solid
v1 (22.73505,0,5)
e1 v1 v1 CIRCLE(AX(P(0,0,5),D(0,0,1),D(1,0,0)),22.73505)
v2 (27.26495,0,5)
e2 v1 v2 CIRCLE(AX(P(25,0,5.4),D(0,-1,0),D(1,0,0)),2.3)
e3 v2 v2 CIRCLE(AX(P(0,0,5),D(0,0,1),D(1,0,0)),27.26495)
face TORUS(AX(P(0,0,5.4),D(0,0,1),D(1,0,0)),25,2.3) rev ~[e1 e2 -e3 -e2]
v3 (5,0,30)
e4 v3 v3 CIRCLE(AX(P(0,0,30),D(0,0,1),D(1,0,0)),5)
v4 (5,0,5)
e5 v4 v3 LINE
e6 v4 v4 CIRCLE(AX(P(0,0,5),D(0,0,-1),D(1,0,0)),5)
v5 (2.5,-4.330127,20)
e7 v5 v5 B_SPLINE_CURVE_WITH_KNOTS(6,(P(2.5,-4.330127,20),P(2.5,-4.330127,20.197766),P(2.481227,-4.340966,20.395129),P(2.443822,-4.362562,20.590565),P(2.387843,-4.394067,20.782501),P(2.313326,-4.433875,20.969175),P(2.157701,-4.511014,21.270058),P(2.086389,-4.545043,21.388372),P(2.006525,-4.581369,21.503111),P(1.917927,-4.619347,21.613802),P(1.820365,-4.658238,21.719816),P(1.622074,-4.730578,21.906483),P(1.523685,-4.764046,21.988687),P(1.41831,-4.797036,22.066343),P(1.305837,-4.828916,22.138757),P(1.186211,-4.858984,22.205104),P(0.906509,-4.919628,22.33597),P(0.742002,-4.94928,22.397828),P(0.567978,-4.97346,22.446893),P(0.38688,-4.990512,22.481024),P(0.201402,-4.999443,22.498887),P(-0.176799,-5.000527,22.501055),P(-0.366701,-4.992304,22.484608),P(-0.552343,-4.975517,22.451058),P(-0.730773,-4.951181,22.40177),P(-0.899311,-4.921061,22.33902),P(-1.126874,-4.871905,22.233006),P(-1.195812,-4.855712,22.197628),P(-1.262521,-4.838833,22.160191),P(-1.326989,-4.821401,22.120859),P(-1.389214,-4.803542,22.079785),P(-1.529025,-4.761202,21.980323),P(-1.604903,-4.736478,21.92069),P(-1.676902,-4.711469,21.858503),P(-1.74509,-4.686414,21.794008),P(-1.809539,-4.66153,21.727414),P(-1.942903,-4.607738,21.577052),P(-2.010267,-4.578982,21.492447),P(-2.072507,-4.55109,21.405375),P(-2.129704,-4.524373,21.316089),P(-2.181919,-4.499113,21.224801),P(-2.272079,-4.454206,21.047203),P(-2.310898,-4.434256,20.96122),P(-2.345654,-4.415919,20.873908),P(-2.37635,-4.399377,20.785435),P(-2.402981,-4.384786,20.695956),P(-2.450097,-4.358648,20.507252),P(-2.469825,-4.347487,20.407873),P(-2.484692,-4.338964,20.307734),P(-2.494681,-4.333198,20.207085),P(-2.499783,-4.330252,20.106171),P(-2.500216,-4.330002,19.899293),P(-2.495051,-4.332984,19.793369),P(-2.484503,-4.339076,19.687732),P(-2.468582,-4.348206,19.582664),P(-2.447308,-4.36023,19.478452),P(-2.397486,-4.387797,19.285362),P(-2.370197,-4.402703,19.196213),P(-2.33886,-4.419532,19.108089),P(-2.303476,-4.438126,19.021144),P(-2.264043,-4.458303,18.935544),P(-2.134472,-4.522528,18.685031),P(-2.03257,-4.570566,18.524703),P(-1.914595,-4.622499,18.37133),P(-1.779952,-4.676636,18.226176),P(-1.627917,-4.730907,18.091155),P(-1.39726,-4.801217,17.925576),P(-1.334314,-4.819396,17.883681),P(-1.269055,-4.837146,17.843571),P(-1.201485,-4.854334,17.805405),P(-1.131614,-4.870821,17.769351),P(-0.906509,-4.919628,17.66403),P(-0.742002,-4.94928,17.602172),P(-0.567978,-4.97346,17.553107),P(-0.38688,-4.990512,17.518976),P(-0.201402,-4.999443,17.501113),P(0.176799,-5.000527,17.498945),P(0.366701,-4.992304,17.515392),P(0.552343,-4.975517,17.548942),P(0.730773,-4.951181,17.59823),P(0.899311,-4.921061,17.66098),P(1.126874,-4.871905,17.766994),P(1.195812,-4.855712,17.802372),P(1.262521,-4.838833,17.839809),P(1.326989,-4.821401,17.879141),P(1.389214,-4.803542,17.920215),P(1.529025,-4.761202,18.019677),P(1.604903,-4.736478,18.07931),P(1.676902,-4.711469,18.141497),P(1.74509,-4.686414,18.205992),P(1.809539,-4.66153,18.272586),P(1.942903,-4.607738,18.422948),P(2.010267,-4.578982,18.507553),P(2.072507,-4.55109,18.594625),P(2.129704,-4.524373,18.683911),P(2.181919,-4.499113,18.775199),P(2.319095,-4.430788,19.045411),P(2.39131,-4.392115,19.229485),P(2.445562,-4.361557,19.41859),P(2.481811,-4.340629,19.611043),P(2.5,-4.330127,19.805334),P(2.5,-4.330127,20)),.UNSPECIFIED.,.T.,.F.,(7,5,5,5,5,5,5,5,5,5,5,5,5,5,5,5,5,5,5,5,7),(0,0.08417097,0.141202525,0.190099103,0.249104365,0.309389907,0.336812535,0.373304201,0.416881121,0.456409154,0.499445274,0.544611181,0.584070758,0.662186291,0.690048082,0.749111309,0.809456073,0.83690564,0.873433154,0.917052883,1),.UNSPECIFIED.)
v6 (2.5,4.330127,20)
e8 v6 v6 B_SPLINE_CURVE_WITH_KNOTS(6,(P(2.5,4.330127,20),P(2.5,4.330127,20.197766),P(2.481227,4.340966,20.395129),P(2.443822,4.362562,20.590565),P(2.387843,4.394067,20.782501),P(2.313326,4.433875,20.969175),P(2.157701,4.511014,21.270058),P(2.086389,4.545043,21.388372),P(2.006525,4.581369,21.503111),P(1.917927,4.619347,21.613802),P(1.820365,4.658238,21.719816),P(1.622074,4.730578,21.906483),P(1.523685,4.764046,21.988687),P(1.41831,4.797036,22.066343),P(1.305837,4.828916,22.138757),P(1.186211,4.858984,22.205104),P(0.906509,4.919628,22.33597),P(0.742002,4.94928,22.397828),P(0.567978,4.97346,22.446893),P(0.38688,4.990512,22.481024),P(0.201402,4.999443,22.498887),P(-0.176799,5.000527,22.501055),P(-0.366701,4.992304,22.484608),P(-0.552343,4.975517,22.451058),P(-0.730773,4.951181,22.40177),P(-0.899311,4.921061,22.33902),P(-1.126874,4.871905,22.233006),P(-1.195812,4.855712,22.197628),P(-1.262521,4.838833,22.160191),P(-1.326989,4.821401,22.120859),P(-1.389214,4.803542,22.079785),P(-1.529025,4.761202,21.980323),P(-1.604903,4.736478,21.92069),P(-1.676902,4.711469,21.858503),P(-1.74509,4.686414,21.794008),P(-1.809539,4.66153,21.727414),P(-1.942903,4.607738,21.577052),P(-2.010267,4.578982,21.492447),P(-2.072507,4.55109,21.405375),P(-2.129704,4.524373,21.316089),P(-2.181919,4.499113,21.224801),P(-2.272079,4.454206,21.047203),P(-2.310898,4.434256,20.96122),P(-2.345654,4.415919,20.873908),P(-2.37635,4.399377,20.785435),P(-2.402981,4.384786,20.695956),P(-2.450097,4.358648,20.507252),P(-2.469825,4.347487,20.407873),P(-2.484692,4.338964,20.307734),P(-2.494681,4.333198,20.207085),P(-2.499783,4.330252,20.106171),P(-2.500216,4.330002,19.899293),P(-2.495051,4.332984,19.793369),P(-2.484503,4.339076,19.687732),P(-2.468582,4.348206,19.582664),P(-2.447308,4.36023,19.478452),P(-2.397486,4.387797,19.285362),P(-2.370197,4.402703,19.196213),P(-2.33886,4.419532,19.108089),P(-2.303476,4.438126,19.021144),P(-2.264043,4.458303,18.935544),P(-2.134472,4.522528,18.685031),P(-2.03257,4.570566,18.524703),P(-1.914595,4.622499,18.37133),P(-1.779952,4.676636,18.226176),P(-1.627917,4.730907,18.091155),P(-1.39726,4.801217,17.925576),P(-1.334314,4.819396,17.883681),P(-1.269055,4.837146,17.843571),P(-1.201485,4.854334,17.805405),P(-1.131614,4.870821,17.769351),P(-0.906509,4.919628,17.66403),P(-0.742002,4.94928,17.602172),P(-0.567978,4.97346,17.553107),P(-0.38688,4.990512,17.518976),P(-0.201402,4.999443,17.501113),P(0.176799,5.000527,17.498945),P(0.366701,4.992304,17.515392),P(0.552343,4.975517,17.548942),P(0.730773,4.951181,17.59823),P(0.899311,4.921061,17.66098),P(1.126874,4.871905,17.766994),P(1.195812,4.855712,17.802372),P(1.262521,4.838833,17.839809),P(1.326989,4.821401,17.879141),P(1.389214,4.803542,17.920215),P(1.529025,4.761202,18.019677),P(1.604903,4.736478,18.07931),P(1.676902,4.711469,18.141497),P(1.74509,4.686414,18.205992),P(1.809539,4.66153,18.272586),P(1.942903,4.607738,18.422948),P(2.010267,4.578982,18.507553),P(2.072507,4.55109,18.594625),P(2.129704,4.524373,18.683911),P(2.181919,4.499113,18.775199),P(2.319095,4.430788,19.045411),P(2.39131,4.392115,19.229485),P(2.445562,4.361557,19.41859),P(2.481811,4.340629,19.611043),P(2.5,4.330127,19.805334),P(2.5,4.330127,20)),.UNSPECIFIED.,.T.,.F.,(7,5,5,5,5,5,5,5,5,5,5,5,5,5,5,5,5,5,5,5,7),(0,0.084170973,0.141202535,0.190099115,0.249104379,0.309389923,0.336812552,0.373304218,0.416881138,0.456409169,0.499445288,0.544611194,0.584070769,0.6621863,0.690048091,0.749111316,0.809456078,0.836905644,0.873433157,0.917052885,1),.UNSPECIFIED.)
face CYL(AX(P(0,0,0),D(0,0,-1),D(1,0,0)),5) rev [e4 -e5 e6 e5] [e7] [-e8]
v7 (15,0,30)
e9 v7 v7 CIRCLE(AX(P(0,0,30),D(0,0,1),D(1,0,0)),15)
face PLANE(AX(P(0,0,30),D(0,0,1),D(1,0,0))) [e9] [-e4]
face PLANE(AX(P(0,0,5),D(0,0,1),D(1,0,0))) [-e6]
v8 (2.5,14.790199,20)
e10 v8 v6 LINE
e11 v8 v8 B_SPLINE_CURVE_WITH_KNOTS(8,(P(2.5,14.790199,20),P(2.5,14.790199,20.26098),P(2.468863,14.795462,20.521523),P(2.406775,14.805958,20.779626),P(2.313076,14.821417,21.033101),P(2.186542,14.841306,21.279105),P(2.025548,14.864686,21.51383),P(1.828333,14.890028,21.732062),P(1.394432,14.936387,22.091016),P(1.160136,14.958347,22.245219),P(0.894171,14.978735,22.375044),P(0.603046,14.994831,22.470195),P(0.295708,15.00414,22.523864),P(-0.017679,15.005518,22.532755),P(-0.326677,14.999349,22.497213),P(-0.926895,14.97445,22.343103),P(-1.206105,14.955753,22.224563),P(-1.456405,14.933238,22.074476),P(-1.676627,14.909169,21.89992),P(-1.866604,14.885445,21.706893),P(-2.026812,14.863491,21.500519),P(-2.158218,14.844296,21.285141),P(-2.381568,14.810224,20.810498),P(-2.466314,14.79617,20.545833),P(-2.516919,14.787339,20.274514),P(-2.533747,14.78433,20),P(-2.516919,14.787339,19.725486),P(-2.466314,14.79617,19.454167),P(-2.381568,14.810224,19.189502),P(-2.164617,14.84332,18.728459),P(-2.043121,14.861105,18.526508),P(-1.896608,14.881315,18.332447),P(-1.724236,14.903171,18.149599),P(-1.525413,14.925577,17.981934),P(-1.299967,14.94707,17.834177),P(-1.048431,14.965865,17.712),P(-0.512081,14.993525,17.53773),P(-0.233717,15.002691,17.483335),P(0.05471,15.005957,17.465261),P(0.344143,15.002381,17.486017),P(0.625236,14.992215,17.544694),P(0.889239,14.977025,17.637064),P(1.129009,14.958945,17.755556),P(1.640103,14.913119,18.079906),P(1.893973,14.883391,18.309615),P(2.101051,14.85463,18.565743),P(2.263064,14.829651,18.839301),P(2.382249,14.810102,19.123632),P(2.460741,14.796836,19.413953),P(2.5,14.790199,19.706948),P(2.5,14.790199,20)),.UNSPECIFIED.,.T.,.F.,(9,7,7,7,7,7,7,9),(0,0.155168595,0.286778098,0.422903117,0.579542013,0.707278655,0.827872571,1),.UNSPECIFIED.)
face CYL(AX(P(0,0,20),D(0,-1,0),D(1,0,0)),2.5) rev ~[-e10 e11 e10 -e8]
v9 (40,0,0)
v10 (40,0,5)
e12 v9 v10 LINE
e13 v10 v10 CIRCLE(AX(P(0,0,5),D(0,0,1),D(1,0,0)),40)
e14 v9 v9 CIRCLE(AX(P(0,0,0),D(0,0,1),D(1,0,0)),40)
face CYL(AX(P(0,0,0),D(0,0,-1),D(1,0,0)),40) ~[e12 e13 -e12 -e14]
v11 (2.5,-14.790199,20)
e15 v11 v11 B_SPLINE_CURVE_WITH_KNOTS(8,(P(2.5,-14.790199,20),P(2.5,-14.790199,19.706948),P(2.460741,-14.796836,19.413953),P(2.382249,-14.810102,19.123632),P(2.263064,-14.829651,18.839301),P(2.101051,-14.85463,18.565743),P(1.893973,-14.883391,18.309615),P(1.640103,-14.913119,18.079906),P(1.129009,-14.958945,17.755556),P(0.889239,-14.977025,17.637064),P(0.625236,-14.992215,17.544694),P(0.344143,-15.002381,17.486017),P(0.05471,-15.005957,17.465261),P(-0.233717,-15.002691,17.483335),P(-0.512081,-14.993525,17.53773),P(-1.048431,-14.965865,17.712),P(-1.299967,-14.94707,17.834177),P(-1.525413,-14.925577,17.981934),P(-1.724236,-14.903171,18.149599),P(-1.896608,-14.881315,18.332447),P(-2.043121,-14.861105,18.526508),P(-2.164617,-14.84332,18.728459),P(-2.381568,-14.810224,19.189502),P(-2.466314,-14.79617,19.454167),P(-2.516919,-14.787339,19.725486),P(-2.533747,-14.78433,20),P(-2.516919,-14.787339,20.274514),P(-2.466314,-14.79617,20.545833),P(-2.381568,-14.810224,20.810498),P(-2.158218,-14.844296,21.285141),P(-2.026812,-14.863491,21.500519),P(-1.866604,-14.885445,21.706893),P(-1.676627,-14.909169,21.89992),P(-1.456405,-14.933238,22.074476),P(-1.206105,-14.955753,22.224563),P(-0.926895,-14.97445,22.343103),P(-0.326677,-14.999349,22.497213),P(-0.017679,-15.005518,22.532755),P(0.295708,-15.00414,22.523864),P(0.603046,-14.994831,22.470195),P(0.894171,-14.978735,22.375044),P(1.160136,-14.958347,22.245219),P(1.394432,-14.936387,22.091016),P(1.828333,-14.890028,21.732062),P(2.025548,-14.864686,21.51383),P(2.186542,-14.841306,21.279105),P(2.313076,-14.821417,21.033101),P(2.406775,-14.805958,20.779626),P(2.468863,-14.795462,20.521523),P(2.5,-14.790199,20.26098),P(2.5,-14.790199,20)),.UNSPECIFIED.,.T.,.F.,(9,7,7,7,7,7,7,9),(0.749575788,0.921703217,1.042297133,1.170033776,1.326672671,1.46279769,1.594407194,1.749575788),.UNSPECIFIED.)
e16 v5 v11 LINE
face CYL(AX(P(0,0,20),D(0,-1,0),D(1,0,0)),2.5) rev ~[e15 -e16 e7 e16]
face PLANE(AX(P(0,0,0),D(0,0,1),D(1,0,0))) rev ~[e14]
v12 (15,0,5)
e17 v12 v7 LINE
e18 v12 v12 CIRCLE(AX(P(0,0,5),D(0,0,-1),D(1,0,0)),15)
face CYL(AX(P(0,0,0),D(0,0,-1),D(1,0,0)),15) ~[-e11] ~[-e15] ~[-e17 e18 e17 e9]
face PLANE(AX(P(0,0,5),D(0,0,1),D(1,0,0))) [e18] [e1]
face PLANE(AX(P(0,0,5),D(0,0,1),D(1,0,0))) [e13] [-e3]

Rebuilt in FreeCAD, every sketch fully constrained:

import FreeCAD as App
import Part
import Sketcher

V = App.Vector
Q = App.Units.Quantity

doc = App.newDocument("Part")
body = doc.addObject("PartDesign::Body", "Body")

# Sketch on XY plane
sketch1 = body.newObject("Sketcher::SketchObject", "Sketch")
sketch1.AttachmentSupport = (doc.getObject("XY_Plane"), [""])
sketch1.MapMode = "FlatFace"
sketch1.addGeometry(Part.Circle(V(0, 0, 0), V(0, 0, 1), 5), False)
sketch1.addConstraint([
    Sketcher.Constraint("Coincident", 0, 3, -1, 1),
    Sketcher.Constraint("Diameter", 0, Q("10 mm")),
])
pad1 = body.newObject("PartDesign::Pad", "Pad")
pad1.Profile = sketch1
pad1.Length = 30
body2 = doc.addObject("PartDesign::Body", "Body001")

# Sketch on XZ plane
sketch2 = body2.newObject("Sketcher::SketchObject", "Sketch001")
sketch2.AttachmentSupport = (doc.getObject("XZ_Plane001"), [""])
sketch2.MapMode = "FlatFace"
sketch2.addGeometry(Part.Circle(V(0, 20, 0), V(0, 0, 1), 2.5), False)
sketch2.addConstraint([
    Sketcher.Constraint("PointOnObject", 0, 3, -2),
    Sketcher.Constraint("Diameter", 0, Q("5 mm")),
    Sketcher.Constraint("DistanceY", -1, 1, 0, 3, Q("20 mm")),
])
pad2 = body2.newObject("PartDesign::Pad", "Pad001")
pad2.Profile = sketch2
pad2.Length = 30
pad2.Midplane = True
body3 = doc.addObject("PartDesign::Body", "Body002")

# Sketch on XY plane
sketch3 = body3.newObject("Sketcher::SketchObject", "Sketch002")
sketch3.AttachmentSupport = (doc.getObject("XY_Plane002"), [""])
sketch3.MapMode = "FlatFace"
sketch3.addGeometry(Part.Circle(V(0, 0, 0), V(0, 0, 1), 15), False)
sketch3.addConstraint([
    Sketcher.Constraint("Coincident", 0, 3, -1, 1),
    Sketcher.Constraint("Diameter", 0, Q("30 mm")),
])
pad3 = body3.newObject("PartDesign::Pad", "Pad002")
pad3.Profile = sketch3
pad3.Length = 30
doc.recompute()

boolean = body3.newObject("PartDesign::Boolean", "Boolean")
boolean.Type = "Cut"
boolean.addObjects([body2])
doc.recompute()

boolean2 = body3.newObject("PartDesign::Boolean", "Boolean001")
boolean2.Type = "Cut"
boolean2.addObjects([body])
body4 = doc.addObject("PartDesign::Body", "Body003")

# Sketch on XZ plane
sketch4 = body4.newObject("Sketcher::SketchObject", "Sketch003")
sketch4.AttachmentSupport = (doc.getObject("XZ_Plane003"), [""])
sketch4.MapMode = "FlatFace"
sketch4.addGeometry(Part.Circle(V(25, 5.4, 0), V(0, 0, 1), 2.3), False)
sketch4.addConstraint([
    Sketcher.Constraint("Diameter", 0, Q("4.6 mm")),
    Sketcher.Constraint("DistanceX", -1, 1, 0, 3, Q("25 mm")),
    Sketcher.Constraint("DistanceY", -1, 1, 0, 3, Q("5.4 mm")),
])
revolution = body4.newObject("PartDesign::Revolution", "Revolution")
revolution.Profile = sketch4
revolution.ReferenceAxis = (sketch4, ["V_Axis"])
revolution.Angle = 360
body5 = doc.addObject("PartDesign::Body", "Body004")

# Sketch on XY plane
sketch5 = body5.newObject("Sketcher::SketchObject", "Sketch004")
sketch5.AttachmentSupport = (doc.getObject("XY_Plane004"), [""])
sketch5.MapMode = "FlatFace"
sketch5.addGeometry(Part.Circle(V(0, 0, 0), V(0, 0, 1), 40), False)
sketch5.addConstraint([
    Sketcher.Constraint("Coincident", 0, 3, -1, 1),
    Sketcher.Constraint("Diameter", 0, Q("80 mm")),
])
pad4 = body5.newObject("PartDesign::Pad", "Pad003")
pad4.Profile = sketch5
pad4.Length = 5
doc.recompute()

boolean3 = body5.newObject("PartDesign::Boolean", "Boolean002")
boolean3.Type = "Cut"
boolean3.addObjects([body4])
doc.recompute()

boolean4 = body5.newObject("PartDesign::Boolean", "Boolean003")
boolean4.Type = "Fuse"
boolean4.addObjects([body3])

doc.recompute()
